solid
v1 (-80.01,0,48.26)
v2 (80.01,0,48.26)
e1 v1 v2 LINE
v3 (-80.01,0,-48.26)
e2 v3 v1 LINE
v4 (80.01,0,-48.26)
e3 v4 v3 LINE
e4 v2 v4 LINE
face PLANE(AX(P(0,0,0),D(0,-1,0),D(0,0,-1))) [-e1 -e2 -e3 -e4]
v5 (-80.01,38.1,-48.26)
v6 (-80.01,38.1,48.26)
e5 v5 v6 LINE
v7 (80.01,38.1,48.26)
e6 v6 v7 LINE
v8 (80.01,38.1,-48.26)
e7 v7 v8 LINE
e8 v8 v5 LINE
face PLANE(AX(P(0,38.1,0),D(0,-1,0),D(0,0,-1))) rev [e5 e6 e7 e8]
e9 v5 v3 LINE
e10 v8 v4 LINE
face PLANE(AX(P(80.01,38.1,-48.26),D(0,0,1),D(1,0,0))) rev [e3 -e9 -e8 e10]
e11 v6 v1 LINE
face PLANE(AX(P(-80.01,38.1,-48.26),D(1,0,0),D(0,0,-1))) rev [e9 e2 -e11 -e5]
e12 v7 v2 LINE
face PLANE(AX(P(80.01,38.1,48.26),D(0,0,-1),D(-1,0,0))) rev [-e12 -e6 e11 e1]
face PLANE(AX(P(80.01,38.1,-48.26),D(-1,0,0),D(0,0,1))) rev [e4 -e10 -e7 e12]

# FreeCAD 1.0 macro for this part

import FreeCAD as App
import Part
import Sketcher
Q = App.Units.Quantity

doc = App.newDocument("Part")
params = doc.addObject("Spreadsheet::Sheet", "Params")
for row, (alias, value) in enumerate([
    ("sketch1_width", "6.3 in"),
    ("sketch1_height", "3.8 in"),
    ("pad1_length", "1.5 in"),
], start=1):
    params.set(f"A{row}", alias)
    params.set(f"B{row}", "=" + value)
    params.setAlias(f"B{row}", alias)

body = doc.addObject("PartDesign::Body", "Body")

# Sketch on XZ plane
sketch1 = body.newObject("Sketcher::SketchObject", "Sketch")
sketch1.AttachmentSupport = (doc.getObject("XZ_Plane"), [""])
sketch1.MapMode = "FlatFace"
sketch1.addGeometry(Part.LineSegment(App.Vector(-80, -48, 0), App.Vector(-80, 48, 0)), False)
sketch1.addGeometry(Part.LineSegment(App.Vector(-80, 48, 0), App.Vector(80, 48, 0)), False)
sketch1.addGeometry(Part.LineSegment(App.Vector(80, 48, 0), App.Vector(80, -48, 0)), False)
sketch1.addGeometry(Part.LineSegment(App.Vector(80, -48, 0), App.Vector(-80, -48, 0)), False)
sketch1.addConstraint(Sketcher.Constraint("Coincident", 0, 2, 1, 1))
sketch1.addConstraint(Sketcher.Constraint("Coincident", 1, 2, 2, 1))
sketch1.addConstraint(Sketcher.Constraint("Coincident", 2, 2, 3, 1))
sketch1.addConstraint(Sketcher.Constraint("Coincident", 3, 2, 0, 1))
sketch1.addConstraint(Sketcher.Constraint("Vertical", 0))
sketch1.addConstraint(Sketcher.Constraint("Horizontal", 1))
sketch1.addConstraint(Sketcher.Constraint("Vertical", 2))
sketch1.addConstraint(Sketcher.Constraint("Horizontal", 3))
sketch1.addConstraint(Sketcher.Constraint("Symmetric", 0, 2, 2, 2, -1, 1))
sketch1.addConstraint(Sketcher.Constraint("DistanceX", 1, 1, 1, 2, Q("6.3 in")))
sketch1.addConstraint(Sketcher.Constraint("DistanceY", 0, 1, 0, 2, Q("3.8 in")))
sketch1.setExpression("Constraints[9]", "Params.sketch1_width")
sketch1.setExpression("Constraints[10]", "Params.sketch1_height")
pad1 = body.newObject("PartDesign::Pad", "Pad")
pad1.Profile = sketch1
pad1.setExpression("Length", "Params.pad1_length")
pad1.Reversed = True

doc.recompute()
